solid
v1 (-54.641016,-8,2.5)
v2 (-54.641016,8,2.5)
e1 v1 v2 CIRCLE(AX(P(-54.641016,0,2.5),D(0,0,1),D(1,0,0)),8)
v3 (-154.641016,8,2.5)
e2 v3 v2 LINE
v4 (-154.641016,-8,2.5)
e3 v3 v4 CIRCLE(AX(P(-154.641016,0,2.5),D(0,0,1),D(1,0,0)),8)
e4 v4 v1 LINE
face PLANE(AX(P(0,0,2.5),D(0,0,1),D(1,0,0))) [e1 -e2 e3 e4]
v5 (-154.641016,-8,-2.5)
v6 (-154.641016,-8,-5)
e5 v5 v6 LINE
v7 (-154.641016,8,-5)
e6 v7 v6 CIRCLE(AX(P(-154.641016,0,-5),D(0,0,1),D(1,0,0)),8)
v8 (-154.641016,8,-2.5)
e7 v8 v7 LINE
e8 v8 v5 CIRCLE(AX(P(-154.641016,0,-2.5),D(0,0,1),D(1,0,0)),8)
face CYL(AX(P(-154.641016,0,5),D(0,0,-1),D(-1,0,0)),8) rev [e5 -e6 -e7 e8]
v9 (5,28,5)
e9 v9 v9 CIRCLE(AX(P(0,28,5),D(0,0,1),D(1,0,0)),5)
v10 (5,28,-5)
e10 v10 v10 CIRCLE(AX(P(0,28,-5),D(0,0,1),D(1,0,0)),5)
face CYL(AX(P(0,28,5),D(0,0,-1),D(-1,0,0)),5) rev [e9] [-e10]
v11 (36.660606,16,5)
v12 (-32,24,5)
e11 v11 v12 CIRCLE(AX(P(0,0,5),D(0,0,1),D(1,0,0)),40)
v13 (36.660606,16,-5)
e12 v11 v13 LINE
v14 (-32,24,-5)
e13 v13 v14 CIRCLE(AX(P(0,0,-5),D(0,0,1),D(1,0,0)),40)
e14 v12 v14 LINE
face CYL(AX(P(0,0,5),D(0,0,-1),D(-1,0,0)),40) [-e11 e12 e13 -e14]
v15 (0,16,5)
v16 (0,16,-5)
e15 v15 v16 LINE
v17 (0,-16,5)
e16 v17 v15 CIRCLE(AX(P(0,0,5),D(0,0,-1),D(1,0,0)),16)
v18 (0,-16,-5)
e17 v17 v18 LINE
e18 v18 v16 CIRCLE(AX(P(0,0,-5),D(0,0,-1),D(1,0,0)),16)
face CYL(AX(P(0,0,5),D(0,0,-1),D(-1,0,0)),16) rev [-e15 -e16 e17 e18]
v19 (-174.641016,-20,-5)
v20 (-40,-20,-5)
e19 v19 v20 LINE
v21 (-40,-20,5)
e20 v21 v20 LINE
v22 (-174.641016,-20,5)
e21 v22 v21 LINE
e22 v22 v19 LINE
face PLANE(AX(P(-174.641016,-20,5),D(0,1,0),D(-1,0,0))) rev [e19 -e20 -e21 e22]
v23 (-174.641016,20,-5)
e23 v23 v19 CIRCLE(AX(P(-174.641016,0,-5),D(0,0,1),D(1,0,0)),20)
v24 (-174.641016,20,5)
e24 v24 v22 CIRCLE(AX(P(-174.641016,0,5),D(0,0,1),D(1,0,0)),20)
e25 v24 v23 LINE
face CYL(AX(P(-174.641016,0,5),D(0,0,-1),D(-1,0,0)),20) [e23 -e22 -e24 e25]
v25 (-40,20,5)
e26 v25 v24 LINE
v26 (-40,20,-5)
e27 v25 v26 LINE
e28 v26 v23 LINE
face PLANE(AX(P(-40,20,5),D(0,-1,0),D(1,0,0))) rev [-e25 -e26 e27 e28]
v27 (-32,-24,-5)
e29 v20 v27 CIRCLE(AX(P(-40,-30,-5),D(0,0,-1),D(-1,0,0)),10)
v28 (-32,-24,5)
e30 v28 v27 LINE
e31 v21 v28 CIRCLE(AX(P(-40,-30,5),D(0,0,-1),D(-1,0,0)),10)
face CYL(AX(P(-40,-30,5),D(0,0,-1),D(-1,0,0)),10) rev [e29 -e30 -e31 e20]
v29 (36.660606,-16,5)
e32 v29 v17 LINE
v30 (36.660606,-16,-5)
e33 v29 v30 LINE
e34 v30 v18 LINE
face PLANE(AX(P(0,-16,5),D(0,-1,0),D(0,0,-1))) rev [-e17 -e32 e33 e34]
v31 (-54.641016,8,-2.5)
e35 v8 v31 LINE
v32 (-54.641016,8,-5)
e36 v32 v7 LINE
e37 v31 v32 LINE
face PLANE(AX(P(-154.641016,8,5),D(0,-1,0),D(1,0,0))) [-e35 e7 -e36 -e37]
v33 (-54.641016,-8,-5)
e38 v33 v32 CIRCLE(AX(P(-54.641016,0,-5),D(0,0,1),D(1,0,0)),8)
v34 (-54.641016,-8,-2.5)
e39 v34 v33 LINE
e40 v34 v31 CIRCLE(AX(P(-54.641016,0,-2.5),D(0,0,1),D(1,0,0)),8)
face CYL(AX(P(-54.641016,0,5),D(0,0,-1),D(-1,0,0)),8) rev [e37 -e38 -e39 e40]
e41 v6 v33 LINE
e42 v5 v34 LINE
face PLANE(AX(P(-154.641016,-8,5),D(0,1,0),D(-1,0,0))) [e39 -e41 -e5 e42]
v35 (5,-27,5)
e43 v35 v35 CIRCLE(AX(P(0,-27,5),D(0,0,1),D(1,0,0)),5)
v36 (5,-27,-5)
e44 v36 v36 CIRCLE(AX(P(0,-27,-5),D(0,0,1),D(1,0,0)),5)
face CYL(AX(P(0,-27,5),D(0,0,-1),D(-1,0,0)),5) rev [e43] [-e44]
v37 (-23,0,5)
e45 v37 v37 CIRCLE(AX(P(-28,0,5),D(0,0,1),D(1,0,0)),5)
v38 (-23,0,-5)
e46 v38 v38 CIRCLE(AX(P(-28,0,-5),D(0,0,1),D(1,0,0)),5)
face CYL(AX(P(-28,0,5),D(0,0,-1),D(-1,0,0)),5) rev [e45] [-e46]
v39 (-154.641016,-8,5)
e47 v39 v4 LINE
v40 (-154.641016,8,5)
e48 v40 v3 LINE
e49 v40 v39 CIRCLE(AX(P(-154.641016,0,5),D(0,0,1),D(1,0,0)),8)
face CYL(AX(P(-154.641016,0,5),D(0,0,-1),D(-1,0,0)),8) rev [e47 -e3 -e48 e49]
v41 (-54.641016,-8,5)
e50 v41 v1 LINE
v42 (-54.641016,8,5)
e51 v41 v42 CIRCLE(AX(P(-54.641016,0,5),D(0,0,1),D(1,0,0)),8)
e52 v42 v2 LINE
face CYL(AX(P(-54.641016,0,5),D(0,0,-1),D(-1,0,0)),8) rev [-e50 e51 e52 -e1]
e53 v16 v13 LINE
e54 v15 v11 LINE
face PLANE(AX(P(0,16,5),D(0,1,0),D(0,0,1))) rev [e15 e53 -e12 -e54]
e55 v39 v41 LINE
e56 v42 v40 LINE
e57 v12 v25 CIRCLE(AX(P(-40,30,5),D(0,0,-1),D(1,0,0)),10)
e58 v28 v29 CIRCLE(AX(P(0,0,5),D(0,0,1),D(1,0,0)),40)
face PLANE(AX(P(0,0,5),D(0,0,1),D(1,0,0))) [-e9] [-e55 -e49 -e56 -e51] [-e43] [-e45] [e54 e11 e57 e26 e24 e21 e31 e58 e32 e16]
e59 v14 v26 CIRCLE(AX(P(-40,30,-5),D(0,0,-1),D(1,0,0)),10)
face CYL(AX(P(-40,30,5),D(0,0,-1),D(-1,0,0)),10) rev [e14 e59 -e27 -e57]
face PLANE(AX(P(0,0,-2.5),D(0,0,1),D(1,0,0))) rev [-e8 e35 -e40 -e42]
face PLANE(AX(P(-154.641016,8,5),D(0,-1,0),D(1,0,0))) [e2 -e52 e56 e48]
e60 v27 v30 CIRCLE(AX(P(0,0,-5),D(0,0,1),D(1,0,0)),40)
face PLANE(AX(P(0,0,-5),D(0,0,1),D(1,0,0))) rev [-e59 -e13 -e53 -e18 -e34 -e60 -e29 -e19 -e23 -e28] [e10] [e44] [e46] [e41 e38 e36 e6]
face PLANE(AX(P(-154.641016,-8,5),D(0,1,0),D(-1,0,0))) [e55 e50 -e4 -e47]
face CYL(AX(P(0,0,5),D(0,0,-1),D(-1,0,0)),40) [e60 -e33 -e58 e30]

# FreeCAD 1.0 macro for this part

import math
import FreeCAD as App
import Part
import Sketcher

doc = App.newDocument("Part")
body = doc.addObject("PartDesign::Body", "Body")

# Sketch on XY plane
sketch1 = body.newObject("Sketcher::SketchObject", "Sketch")
sketch1.AttachmentSupport = (doc.getObject("XY_Plane"), [""])
sketch1.MapMode = "FlatFace"
sketch1.addGeometry([
    Part.LineSegment(App.Vector(0, 16, 0), App.Vector(37, 16, 0)),  # 0
    Part.ArcOfCircle(Part.Circle(App.Vector(0, 0, 0), App.Vector(0, 0, 1), 40), math.radians(24), math.radians(143)),  # 1
    Part.ArcOfCircle(Part.Circle(App.Vector(-40, 30, 0), App.Vector(0, 0, 1), 10), math.radians(-90), math.radians(-37)),  # 2
    Part.LineSegment(App.Vector(-40, 20, 0), App.Vector(-175, 20, 0)),  # 3
    Part.ArcOfCircle(Part.Circle(App.Vector(-175, 0, 0), App.Vector(0, 0, 1), 20), math.radians(90), math.radians(270)),  # 4
    Part.LineSegment(App.Vector(-175, -20, 0), App.Vector(-40, -20, 0)),  # 5
    Part.ArcOfCircle(Part.Circle(App.Vector(-40, -30, 0), App.Vector(0, 0, 1), 10), math.radians(37), math.radians(90)),  # 6
    Part.ArcOfCircle(Part.Circle(App.Vector(0, 0, 0), App.Vector(0, 0, 1), 40), math.radians(-143), math.radians(-24)),  # 7
    Part.LineSegment(App.Vector(37, -16, 0), App.Vector(0, -16, 0)),  # 8
    Part.ArcOfCircle(Part.Circle(App.Vector(0, 0, 0), App.Vector(0, 0, 1), 16), math.radians(90), math.radians(270)),  # 9
    Part.ArcOfCircle(Part.Circle(App.Vector(-155, 0, 0), App.Vector(0, 0, 1), 8), math.radians(90), math.radians(270)),  # 10
    Part.LineSegment(App.Vector(-155, 8, 0), App.Vector(-55, 8, 0)),  # 11
    Part.ArcOfCircle(Part.Circle(App.Vector(-55, 0, 0), App.Vector(0, 0, 1), 8), math.radians(-90), math.radians(90)),  # 12
    Part.LineSegment(App.Vector(-55, -8, 0), App.Vector(-155, -8, 0)),  # 13
    Part.Circle(App.Vector(0, -27, 0), App.Vector(0, 0, 1), 5),  # 14
    Part.Circle(App.Vector(-28, 0, 0), App.Vector(0, 0, 1), 5),  # 15
    Part.Circle(App.Vector(0, 28, 0), App.Vector(0, 0, 1), 5),  # 16
], False)
sketch1.addConstraint([
    Sketcher.Constraint("Coincident", 0, 2, 1, 1),
    Sketcher.Constraint("Tangent", 1, 2, 2, 2),
    Sketcher.Constraint("Tangent", 2, 1, 3, 1),
    Sketcher.Constraint("Tangent", 3, 2, 4, 1),
    Sketcher.Constraint("Tangent", 4, 2, 5, 1),
    Sketcher.Constraint("Tangent", 5, 2, 6, 2),
    Sketcher.Constraint("Tangent", 6, 1, 7, 1),
    Sketcher.Constraint("Coincident", 7, 2, 8, 1),
    Sketcher.Constraint("Tangent", 8, 2, 9, 2),
    Sketcher.Constraint("Tangent", 9, 1, 0, 1),
    Sketcher.Constraint("Tangent", 10, 1, 11, 1),
    Sketcher.Constraint("Tangent", 11, 2, 12, 2),
    Sketcher.Constraint("Tangent", 12, 1, 13, 1),
    Sketcher.Constraint("Tangent", 13, 2, 10, 2),
    Sketcher.Constraint("Horizontal", 0),
    Sketcher.Constraint("Horizontal", 3),
    Sketcher.Constraint("Horizontal", 5),
    Sketcher.Constraint("Horizontal", 8),
    Sketcher.Constraint("Horizontal", 11),
    Sketcher.Constraint("Horizontal", 13),
    Sketcher.Constraint("Coincident", 1, 3, -1, 1),
    Sketcher.Constraint("Coincident", 7, 3, -1, 1),
    Sketcher.Constraint("Coincident", 9, 3, -1, 1),
    Sketcher.Constraint("Equal", 2, 6),
    Sketcher.Constraint("Equal", 1, 7),
    Sketcher.Constraint("Equal", 14, 15),
    Sketcher.Constraint("Equal", 15, 16),
    Sketcher.Constraint("PointOnObject", 4, 3, -1),
    Sketcher.Constraint("PointOnObject", 10, 3, -1),
    Sketcher.Constraint("PointOnObject", 14, 3, -2),
    Sketcher.Constraint("PointOnObject", 15, 3, -1),
    Sketcher.Constraint("PointOnObject", 16, 3, -2),
    Sketcher.Constraint("Diameter", 14, 10.0),
    Sketcher.Constraint("Radius", 1, 40.0),
    Sketcher.Constraint("Radius", 2, 10.0),
    Sketcher.Constraint("Radius", 4, 20.0),
    Sketcher.Constraint("Radius", 9, 16.0),
    Sketcher.Constraint("Radius", 10, 8.0),
    Sketcher.Constraint("DistanceX", 11, 1, 11, 2, 100.0),
    Sketcher.Constraint("DistanceY", 14, 3, -1, 1, 27.0),
    Sketcher.Constraint("DistanceX", 15, 3, -1, 1, 28.0),
    Sketcher.Constraint("DistanceY", -1, 1, 16, 3, 28.0),
    Sketcher.Constraint("DistanceX", 4, 3, 10, 3, 20.0),
    Sketcher.Constraint("DistanceX", 3, 2, 3, 1, 134.641016),
])
pad1 = body.newObject("PartDesign::Pad", "Pad")
pad1.Profile = sketch1
pad1.Length = 10
pad1.Midplane = True

# Sketch on XY plane
sketch2 = body.newObject("Sketcher::SketchObject", "Sketch001")
sketch2.AttachmentSupport = (doc.getObject("XY_Plane"), [""])
sketch2.MapMode = "FlatFace"
sketch2.addGeometry([
    Part.LineSegment(App.Vector(-155, -8, 0), App.Vector(-55, -8, 0)),
    Part.ArcOfCircle(Part.Circle(App.Vector(-55, 0, 0), App.Vector(0, 0, 1), 8), math.radians(-90), math.radians(90)),
    Part.LineSegment(App.Vector(-55, 8, 0), App.Vector(-155, 8, 0)),
    Part.ArcOfCircle(Part.Circle(App.Vector(-155, 0, 0), App.Vector(0, 0, 1), 8), math.radians(90), math.radians(270)),
], False)
sketch2.addConstraint([
    Sketcher.Constraint("Tangent", 0, 2, 1, 1),
    Sketcher.Constraint("Tangent", 1, 2, 2, 1),
    Sketcher.Constraint("Tangent", 2, 2, 3, 1),
    Sketcher.Constraint("Tangent", 3, 2, 0, 1),
    Sketcher.Constraint("Horizontal", 0),
    Sketcher.Constraint("Horizontal", 2),
    Sketcher.Constraint("PointOnObject", 1, 3, -1),
    Sketcher.Constraint("Radius", 1, 8.0),
    Sketcher.Constraint("DistanceX", 0, 1, 0, 2, 100.0),
    Sketcher.Constraint("DistanceX", 1, 3, -1, 1, 54.641016),
])
pad2 = body.newObject("PartDesign::Pad", "Pad001")
pad2.Profile = sketch2
pad2.Length = 5
pad2.Midplane = True

doc.recompute()
